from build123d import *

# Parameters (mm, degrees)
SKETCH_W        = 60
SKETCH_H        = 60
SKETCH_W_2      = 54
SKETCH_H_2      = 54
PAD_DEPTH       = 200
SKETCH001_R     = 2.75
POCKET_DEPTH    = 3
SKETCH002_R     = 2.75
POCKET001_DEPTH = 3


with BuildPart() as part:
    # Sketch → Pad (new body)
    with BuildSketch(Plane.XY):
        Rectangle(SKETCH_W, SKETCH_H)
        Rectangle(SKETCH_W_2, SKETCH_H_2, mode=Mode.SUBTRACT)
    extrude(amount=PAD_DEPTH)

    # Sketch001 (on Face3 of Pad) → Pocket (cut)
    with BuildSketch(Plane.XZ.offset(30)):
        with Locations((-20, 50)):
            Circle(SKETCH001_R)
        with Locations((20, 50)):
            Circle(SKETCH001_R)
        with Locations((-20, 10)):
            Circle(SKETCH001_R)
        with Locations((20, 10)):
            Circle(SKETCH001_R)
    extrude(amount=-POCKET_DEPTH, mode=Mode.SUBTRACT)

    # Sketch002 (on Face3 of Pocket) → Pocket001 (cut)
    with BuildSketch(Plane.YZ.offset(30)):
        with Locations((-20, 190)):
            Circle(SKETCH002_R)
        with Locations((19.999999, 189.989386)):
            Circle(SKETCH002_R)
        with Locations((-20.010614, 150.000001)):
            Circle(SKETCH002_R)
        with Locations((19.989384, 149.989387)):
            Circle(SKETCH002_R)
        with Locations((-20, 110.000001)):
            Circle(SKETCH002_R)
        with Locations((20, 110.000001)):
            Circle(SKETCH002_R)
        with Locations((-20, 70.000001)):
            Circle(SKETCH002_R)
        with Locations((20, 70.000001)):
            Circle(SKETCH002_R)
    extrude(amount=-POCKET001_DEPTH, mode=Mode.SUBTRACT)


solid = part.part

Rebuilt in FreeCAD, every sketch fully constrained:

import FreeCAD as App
import Part
import Sketcher
from FreeCAD import Vector
Q = App.Units.Quantity


def add_polygon(sketch, points):
    """Adds a closed chain of lines whose ends are joined by coincident constraints."""
    first, n = sketch.GeometryCount, len(points)
    for a, b in zip(points, points[1:] + points[:1]):
        sketch.addGeometry(Part.LineSegment(App.Vector(*a, 0), App.Vector(*b, 0)), False)
    for i in range(n):
        sketch.addConstraint(Sketcher.Constraint("Coincident", first + i, 2, first + (i + 1) % n, 1))

doc = App.newDocument("Part")
params = doc.addObject("Spreadsheet::Sheet", "Params")
for row, (alias, value) in enumerate([
    ("sketch1_width", "60 mm"),
    ("sketch1_width2", "54 mm"),
    ("pad1_length", "200 mm"),
    ("sketch2_diameter", "5.5 mm"),
    ("pocket1_length", "3 mm"),
    ("sketch3_diameter", "5.5 mm"),
    ("pocket2_length", "3 mm"),
], start=1):
    params.set(f"A{row}", alias)
    params.set(f"B{row}", "=" + value)
    params.setAlias(f"B{row}", alias)

body = doc.addObject("PartDesign::Body", "Body")

# Sketch on XY plane
sketch1 = body.newObject("Sketcher::SketchObject", "Sketch")
sketch1.AttachmentSupport = (doc.getObject("XY_Plane"), [""])
sketch1.MapMode = "FlatFace"
add_polygon(sketch1, [(-30, 30), (-30, -30), (30, -30), (30, 30)])  # lines 0-3
add_polygon(sketch1, [(27, -27), (-27, -27), (-27, 27), (27, 27)])  # lines 4-7
sketch1.addConstraint([
    Sketcher.Constraint("Vertical", 0),
    Sketcher.Constraint("Horizontal", 1),
    Sketcher.Constraint("Vertical", 2),
    Sketcher.Constraint("Horizontal", 3),
    Sketcher.Constraint("Horizontal", 4),
    Sketcher.Constraint("Vertical", 5),
    Sketcher.Constraint("Horizontal", 6),
    Sketcher.Constraint("Vertical", 7),
    Sketcher.Constraint("Symmetric", 0, 2, 2, 2, -1, 1),
    Sketcher.Constraint("Symmetric", 4, 2, 6, 2, -1, 1),
    Sketcher.Constraint("Equal", 3, 0),
    Sketcher.Constraint("Equal", 6, 5),
    Sketcher.Constraint("DistanceX", 1, 1, 1, 2, Q("60 mm")),
    Sketcher.Constraint("DistanceX", 4, 2, 4, 1, Q("54 mm")),
])
sketch1.setExpression("Constraints[20]", "Params.sketch1_width")
sketch1.setExpression("Constraints[21]", "Params.sketch1_width2")
pad1 = body.newObject("PartDesign::Pad", "Pad")
pad1.Profile = sketch1
pad1.setExpression("Length", "Params.pad1_length")

# Sketch on XZ plane
sketch2 = body.newObject("Sketcher::SketchObject", "Sketch001")
sketch2.AttachmentSupport = (doc.getObject("XZ_Plane"), [""])
sketch2.MapMode = "FlatFace"
sketch2.AttachmentOffset = App.Placement(Vector(0, 0, 30), App.Rotation())
sketch2.addGeometry([
    Part.Circle(Vector(-20, 50, 0), Vector(0, 0, 1), 2.75),
    Part.Circle(Vector(20, 50, 0), Vector(0, 0, 1), 2.75),
    Part.Circle(Vector(-20, 10, 0), Vector(0, 0, 1), 2.75),
    Part.Circle(Vector(20, 10, 0), Vector(0, 0, 1), 2.75),
], False)
sketch2.addConstraint([
    Sketcher.Constraint("Equal", 0, 1),
    Sketcher.Constraint("Equal", 1, 2),
    Sketcher.Constraint("Equal", 2, 3),
    Sketcher.Constraint("Symmetric", 0, 3, 1, 3, -2),
    Sketcher.Constraint("Symmetric", 2, 3, 3, 3, -2),
    Sketcher.Constraint("Vertical", 0, 3, 2, 3),
    Sketcher.Constraint("Diameter", 0, Q("5.5 mm")),
    Sketcher.Constraint("DistanceX", 0, 3, -1, 1, Q("20 mm")),
    Sketcher.Constraint("DistanceY", -1, 1, 0, 3, Q("50 mm")),
    Sketcher.Constraint("DistanceY", -1, 1, 2, 3, Q("10 mm")),
])
sketch2.setExpression("Constraints[6]", "Params.sketch2_diameter")
pocket1 = body.newObject("PartDesign::Pocket", "Pocket")
pocket1.Profile = sketch2
pocket1.setExpression("Length", "Params.pocket1_length")

# Sketch on YZ plane
sketch3 = body.newObject("Sketcher::SketchObject", "Sketch002")
sketch3.AttachmentSupport = (doc.getObject("YZ_Plane"), [""])
sketch3.MapMode = "FlatFace"
sketch3.AttachmentOffset = App.Placement(Vector(0, 0, 30), App.Rotation())
sketch3.addGeometry([
    Part.Circle(Vector(-20, 190, 0), Vector(0, 0, 1), 2.75),  # 0
    Part.Circle(Vector(19.999999, 189.989386, 0), Vector(0, 0, 1), 2.75),  # 1
    Part.Circle(Vector(-20.010614, 150.000001, 0), Vector(0, 0, 1), 2.75),  # 2
    Part.Circle(Vector(19.989384, 149.989387, 0), Vector(0, 0, 1), 2.75),  # 3
    Part.Circle(Vector(-20, 110.000001, 0), Vector(0, 0, 1), 2.75),  # 4
    Part.Circle(Vector(20, 110.000001, 0), Vector(0, 0, 1), 2.75),  # 5
    Part.Circle(Vector(-20, 70.000001, 0), Vector(0, 0, 1), 2.75),  # 6
    Part.Circle(Vector(20, 70.000001, 0), Vector(0, 0, 1), 2.75),  # 7
], False)
sketch3.addConstraint([
    Sketcher.Constraint("Equal", 0, 1),
    Sketcher.Constraint("Equal", 1, 2),
    Sketcher.Constraint("Equal", 2, 3),
    Sketcher.Constraint("Equal", 3, 4),
    Sketcher.Constraint("Equal", 4, 5),
    Sketcher.Constraint("Equal", 5, 6),
    Sketcher.Constraint("Equal", 6, 7),
    Sketcher.Constraint("Symmetric", 4, 3, 5, 3, -2),
    Sketcher.Constraint("Symmetric", 6, 3, 7, 3, -2),
    Sketcher.Constraint("Vertical", 0, 3, 4, 3),
    Sketcher.Constraint("Vertical", 1, 3, 5, 3),
    Sketcher.Constraint("Vertical", 4, 3, 6, 3),
    Sketcher.Constraint("Diameter", 0, Q("5.5 mm")),
    Sketcher.Constraint("DistanceX", 0, 3, -1, 1, Q("20 mm")),
    Sketcher.Constraint("DistanceY", -1, 1, 0, 3, Q("190 mm")),
    Sketcher.Constraint("DistanceY", -1, 1, 2, 3, Q("150.000001 mm")),
    Sketcher.Constraint("DistanceY", -1, 1, 4, 3, Q("110.000001 mm")),
    Sketcher.Constraint("DistanceY", -1, 1, 6, 3, Q("70.000001 mm")),
    Sketcher.Constraint("DistanceX", 2, 3, 3, 3, Q("39.999998 mm")),
    Sketcher.Constraint("DistanceY", 3, 3, 1, 3, Q("39.999999 mm")),
    Sketcher.Constraint("DistanceY", -1, 1, 1, 3, Q("189.989386 mm")),
    Sketcher.Constraint("DistanceX", 2, 3, -1, 1, Q("20.010614 mm")),
])
sketch3.setExpression("Constraints[12]", "Params.sketch3_diameter")
pocket2 = body.newObject("PartDesign::Pocket", "Pocket001")
pocket2.Profile = sketch3
pocket2.setExpression("Length", "Params.pocket2_length")

doc.recompute()
